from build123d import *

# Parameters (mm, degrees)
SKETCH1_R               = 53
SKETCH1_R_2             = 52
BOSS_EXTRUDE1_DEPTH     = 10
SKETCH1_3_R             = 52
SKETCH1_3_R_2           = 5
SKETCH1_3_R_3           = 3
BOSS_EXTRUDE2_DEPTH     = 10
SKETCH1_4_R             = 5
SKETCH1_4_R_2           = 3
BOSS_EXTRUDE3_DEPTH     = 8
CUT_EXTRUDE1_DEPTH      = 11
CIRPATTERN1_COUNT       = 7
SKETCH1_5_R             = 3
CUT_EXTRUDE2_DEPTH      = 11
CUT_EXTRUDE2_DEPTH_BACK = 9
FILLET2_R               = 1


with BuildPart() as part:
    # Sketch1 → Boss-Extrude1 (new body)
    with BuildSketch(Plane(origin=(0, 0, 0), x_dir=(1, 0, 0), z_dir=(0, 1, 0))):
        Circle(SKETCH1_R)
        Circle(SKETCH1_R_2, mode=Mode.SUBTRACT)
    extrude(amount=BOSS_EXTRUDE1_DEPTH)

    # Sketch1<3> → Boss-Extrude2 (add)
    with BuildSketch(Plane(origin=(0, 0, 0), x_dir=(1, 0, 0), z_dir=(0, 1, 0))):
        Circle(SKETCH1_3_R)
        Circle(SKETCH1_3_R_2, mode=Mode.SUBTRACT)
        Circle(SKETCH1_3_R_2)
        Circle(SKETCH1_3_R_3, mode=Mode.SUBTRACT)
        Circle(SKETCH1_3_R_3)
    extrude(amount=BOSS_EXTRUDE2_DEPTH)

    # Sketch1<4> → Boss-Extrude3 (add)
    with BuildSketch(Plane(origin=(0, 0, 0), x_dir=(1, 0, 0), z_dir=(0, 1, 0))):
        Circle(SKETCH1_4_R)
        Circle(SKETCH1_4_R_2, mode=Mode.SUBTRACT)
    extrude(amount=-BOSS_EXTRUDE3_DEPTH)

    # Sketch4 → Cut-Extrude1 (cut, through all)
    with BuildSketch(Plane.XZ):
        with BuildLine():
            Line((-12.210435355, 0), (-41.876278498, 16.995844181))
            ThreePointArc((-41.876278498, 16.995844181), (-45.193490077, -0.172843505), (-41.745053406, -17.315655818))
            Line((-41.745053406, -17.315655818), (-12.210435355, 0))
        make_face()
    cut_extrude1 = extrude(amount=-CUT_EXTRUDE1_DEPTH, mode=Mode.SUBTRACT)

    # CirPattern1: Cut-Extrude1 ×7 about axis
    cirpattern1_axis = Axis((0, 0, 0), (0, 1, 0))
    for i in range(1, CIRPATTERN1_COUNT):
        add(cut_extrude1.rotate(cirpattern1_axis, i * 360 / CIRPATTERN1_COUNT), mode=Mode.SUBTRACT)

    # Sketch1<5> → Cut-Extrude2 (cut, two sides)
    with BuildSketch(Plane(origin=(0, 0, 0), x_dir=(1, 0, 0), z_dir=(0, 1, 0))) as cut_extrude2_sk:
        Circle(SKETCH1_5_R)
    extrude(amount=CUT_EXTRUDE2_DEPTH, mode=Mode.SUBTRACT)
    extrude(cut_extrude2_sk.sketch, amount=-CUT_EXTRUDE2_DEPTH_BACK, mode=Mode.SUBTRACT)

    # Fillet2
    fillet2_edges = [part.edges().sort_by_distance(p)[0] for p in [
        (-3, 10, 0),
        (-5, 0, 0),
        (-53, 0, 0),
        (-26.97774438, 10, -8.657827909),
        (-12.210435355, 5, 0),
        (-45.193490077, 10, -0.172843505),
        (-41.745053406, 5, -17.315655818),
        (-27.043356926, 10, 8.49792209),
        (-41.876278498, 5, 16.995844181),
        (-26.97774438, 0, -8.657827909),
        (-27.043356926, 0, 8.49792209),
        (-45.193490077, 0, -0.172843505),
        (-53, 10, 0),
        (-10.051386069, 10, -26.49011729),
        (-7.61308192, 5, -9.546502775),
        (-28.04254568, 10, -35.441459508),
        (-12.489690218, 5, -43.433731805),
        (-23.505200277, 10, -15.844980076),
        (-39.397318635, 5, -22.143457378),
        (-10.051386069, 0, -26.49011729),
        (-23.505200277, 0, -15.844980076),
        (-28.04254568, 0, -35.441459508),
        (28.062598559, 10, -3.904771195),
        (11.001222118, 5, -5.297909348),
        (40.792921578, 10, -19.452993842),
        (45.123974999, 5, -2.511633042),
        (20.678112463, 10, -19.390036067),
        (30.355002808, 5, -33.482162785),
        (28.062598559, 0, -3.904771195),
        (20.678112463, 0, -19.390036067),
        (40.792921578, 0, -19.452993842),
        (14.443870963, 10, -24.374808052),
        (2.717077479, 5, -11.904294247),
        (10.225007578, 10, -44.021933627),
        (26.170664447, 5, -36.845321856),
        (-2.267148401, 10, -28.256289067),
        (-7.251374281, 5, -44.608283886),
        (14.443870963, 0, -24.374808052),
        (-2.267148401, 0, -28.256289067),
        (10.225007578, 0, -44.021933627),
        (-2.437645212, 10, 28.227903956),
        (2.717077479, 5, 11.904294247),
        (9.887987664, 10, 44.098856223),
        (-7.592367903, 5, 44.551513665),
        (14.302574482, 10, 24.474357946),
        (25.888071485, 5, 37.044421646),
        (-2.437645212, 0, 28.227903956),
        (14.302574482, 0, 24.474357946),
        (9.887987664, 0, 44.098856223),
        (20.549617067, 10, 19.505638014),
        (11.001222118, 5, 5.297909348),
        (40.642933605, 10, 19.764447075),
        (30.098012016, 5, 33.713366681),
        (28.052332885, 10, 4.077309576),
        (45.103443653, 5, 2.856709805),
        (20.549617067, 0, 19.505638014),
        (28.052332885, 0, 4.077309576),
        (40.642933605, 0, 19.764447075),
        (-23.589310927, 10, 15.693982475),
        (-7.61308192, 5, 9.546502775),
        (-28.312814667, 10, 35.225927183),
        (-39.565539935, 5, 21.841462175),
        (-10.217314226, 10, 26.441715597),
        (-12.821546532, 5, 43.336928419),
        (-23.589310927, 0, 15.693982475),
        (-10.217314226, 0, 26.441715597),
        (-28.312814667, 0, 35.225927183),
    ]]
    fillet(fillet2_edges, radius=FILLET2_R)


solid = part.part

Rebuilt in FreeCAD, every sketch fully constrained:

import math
import FreeCAD as App
import Part
import Sketcher


def edges_at(feature, points):
    """Names of the edges that pass closest to the given points."""
    edges = feature.Shape.Edges
    near = lambda p: min(range(len(edges)), key=lambda i: edges[i].distToShape(Part.Vertex(*p))[0])
    return sorted({f"Edge{near(p) + 1}" for p in points})

doc = App.newDocument("Part")
body = doc.addObject("PartDesign::Body", "Body")

# Sketch on XZ plane
sketch1 = body.newObject("Sketcher::SketchObject", "Sketch")
sketch1.AttachmentSupport = (doc.getObject("XZ_Plane"), [""])
sketch1.MapMode = "FlatFace"
sketch1.addGeometry([
    Part.Circle(App.Vector(0, 0, 0), App.Vector(0, 0, 1), 53),
    Part.Circle(App.Vector(0, 0, 0), App.Vector(0, 0, 1), 52),
], False)
sketch1.addConstraint([
    Sketcher.Constraint("Coincident", 0, 3, -1, 1),
    Sketcher.Constraint("Coincident", 1, 3, -1, 1),
    Sketcher.Constraint("Diameter", 0, 106.0),
    Sketcher.Constraint("Diameter", 1, 104.0),
])
pad1 = body.newObject("PartDesign::Pad", "Pad")
pad1.Profile = sketch1
pad1.Length = 10
pad1.Reversed = True

# Sketch on XZ plane
sketch2 = body.newObject("Sketcher::SketchObject", "Sketch001")
sketch2.AttachmentSupport = (doc.getObject("XZ_Plane"), [""])
sketch2.MapMode = "FlatFace"
sketch2.addGeometry(Part.Circle(App.Vector(0, 0, 0), App.Vector(0, 0, 1), 52), False)
sketch2.addConstraint([
    Sketcher.Constraint("Coincident", 0, 3, -1, 1),
    Sketcher.Constraint("Diameter", 0, 104.0),
])
pad2 = body.newObject("PartDesign::Pad", "Pad001")
pad2.Profile = sketch2
pad2.Length = 10
pad2.Reversed = True

# Sketch on XZ plane
sketch3 = body.newObject("Sketcher::SketchObject", "Sketch002")
sketch3.AttachmentSupport = (doc.getObject("XZ_Plane"), [""])
sketch3.MapMode = "FlatFace"
sketch3.addGeometry([
    Part.Circle(App.Vector(0, 0, 0), App.Vector(0, 0, 1), 5),
    Part.Circle(App.Vector(0, 0, 0), App.Vector(0, 0, 1), 3),
], False)
sketch3.addConstraint([
    Sketcher.Constraint("Coincident", 0, 3, -1, 1),
    Sketcher.Constraint("Coincident", 1, 3, -1, 1),
    Sketcher.Constraint("Diameter", 0, 10.0),
    Sketcher.Constraint("Diameter", 1, 6.0),
])
pad3 = body.newObject("PartDesign::Pad", "Pad002")
pad3.Profile = sketch3
pad3.Length = 8

# Sketch on XZ plane
sketch4 = body.newObject("Sketcher::SketchObject", "Sketch003")
sketch4.AttachmentSupport = (doc.getObject("XZ_Plane"), [""])
sketch4.MapMode = "FlatFace"
sketch4.addGeometry([
    Part.LineSegment(App.Vector(-12, 0, 0), App.Vector(-42, 17, 0)),
    Part.ArcOfCircle(Part.Circle(App.Vector(0, 0, 0), App.Vector(0, 0, 1), 45), math.radians(158), math.radians(203)),
    Part.LineSegment(App.Vector(-42, -17, 0), App.Vector(-12, 0, 0)),
], False)
sketch4.addConstraint([
    Sketcher.Constraint("Coincident", 0, 2, 1, 1),
    Sketcher.Constraint("Coincident", 1, 2, 2, 1),
    Sketcher.Constraint("Coincident", 2, 2, 0, 1),
    Sketcher.Constraint("Coincident", 1, 3, -1, 1),
    Sketcher.Constraint("PointOnObject", 2, 2, -1),
    Sketcher.Constraint("Radius", 1, 45.193821),
    Sketcher.Constraint("DistanceY", 1, 2, 0, 2, 34.3115),
    Sketcher.Constraint("Distance", 2, 34.23632),
    Sketcher.Constraint("DistanceX", 0, 2, -1, 1, 41.876278),
])
pocket1 = body.newObject("PartDesign::Pocket", "Pocket")
pocket1.Profile = sketch4
pocket1.Type = "ThroughAll"
doc.recompute()

polarpattern = body.newObject("PartDesign::PolarPattern", "PolarPattern")
polarpattern.Originals = [pocket1]
polarpattern.Axis = (doc.getObject("Y_Axis"), [""])
polarpattern.Angle = 360
polarpattern.Occurrences = 7
body.Tip = polarpattern

# Sketch on XZ plane
sketch5 = body.newObject("Sketcher::SketchObject", "Sketch004")
sketch5.AttachmentSupport = (doc.getObject("XZ_Plane"), [""])
sketch5.MapMode = "FlatFace"
sketch5.addGeometry(Part.Circle(App.Vector(0, 0, 0), App.Vector(0, 0, 1), 3), False)
sketch5.addConstraint([
    Sketcher.Constraint("Coincident", 0, 3, -1, 1),
    Sketcher.Constraint("Diameter", 0, 6.0),
])
pocket2 = body.newObject("PartDesign::Pocket", "Pocket001")
pocket2.Profile = sketch5
pocket2.Type = "ThroughAll"
pocket2.Midplane = True
doc.recompute()

fillet = body.newObject("PartDesign::Fillet", "Fillet")
fillet.Base = (pocket2, edges_at(pocket2, [
    (-3, 10, 0),
    (-5, 0, 0),
    (-53, 0, 0),
    (-26.978, 10, -8.658),
    (-12.21, 5, 0),
    (-45.193, 10, -0.173),
    (-41.745, 5, -17.316),
    (-27.043, 10, 8.498),
    (-41.876, 5, 16.996),
    (-26.978, 0, -8.658),
    (-27.043, 0, 8.498),
    (-45.193, 0, -0.173),
    (-53, 10, 0),
    (-10.051, 10, -26.49),
    (-7.613, 5, -9.547),
    (-28.043, 10, -35.441),
    (-12.49, 5, -43.434),
    (-23.505, 10, -15.845),
    (-39.397, 5, -22.143),
    (-10.051, 0, -26.49),
    (-23.505, 0, -15.845),
    (-28.043, 0, -35.441),
    (28.063, 10, -3.905),
    (11.001, 5, -5.298),
    (40.793, 10, -19.453),
    (45.124, 5, -2.512),
    (20.678, 10, -19.39),
    (30.355, 5, -33.482),
    (28.063, 0, -3.905),
    (20.678, 0, -19.39),
    (40.793, 0, -19.453),
    (14.444, 10, -24.375),
    (2.717, 5, -11.904),
    (10.225, 10, -44.022),
    (26.171, 5, -36.845),
    (-2.267, 10, -28.256),
    (-7.251, 5, -44.608),
    (14.444, 0, -24.375),
    (-2.267, 0, -28.256),
    (10.225, 0, -44.022),
    (-2.438, 10, 28.228),
    (2.717, 5, 11.904),
    (9.888, 10, 44.099),
    (-7.592, 5, 44.552),
    (14.303, 10, 24.474),
    (25.888, 5, 37.044),
    (-2.438, 0, 28.228),
    (14.303, 0, 24.474),
    (9.888, 0, 44.099),
    (20.55, 10, 19.506),
    (11.001, 5, 5.298),
    (40.643, 10, 19.764),
    (30.098, 5, 33.713),
    (28.052, 10, 4.077),
    (45.103, 5, 2.857),
    (20.55, 0, 19.506),
    (28.052, 0, 4.077),
    (40.643, 0, 19.764),
    (-23.589, 10, 15.694),
    (-7.613, 5, 9.547),
    (-28.313, 10, 35.226),
    (-39.566, 5, 21.841),
    (-10.217, 10, 26.442),
    (-12.822, 5, 43.337),
    (-23.589, 0, 15.694),
    (-10.217, 0, 26.442),
    (-28.313, 0, 35.226),
]))
fillet.Radius = 1

doc.recompute()
